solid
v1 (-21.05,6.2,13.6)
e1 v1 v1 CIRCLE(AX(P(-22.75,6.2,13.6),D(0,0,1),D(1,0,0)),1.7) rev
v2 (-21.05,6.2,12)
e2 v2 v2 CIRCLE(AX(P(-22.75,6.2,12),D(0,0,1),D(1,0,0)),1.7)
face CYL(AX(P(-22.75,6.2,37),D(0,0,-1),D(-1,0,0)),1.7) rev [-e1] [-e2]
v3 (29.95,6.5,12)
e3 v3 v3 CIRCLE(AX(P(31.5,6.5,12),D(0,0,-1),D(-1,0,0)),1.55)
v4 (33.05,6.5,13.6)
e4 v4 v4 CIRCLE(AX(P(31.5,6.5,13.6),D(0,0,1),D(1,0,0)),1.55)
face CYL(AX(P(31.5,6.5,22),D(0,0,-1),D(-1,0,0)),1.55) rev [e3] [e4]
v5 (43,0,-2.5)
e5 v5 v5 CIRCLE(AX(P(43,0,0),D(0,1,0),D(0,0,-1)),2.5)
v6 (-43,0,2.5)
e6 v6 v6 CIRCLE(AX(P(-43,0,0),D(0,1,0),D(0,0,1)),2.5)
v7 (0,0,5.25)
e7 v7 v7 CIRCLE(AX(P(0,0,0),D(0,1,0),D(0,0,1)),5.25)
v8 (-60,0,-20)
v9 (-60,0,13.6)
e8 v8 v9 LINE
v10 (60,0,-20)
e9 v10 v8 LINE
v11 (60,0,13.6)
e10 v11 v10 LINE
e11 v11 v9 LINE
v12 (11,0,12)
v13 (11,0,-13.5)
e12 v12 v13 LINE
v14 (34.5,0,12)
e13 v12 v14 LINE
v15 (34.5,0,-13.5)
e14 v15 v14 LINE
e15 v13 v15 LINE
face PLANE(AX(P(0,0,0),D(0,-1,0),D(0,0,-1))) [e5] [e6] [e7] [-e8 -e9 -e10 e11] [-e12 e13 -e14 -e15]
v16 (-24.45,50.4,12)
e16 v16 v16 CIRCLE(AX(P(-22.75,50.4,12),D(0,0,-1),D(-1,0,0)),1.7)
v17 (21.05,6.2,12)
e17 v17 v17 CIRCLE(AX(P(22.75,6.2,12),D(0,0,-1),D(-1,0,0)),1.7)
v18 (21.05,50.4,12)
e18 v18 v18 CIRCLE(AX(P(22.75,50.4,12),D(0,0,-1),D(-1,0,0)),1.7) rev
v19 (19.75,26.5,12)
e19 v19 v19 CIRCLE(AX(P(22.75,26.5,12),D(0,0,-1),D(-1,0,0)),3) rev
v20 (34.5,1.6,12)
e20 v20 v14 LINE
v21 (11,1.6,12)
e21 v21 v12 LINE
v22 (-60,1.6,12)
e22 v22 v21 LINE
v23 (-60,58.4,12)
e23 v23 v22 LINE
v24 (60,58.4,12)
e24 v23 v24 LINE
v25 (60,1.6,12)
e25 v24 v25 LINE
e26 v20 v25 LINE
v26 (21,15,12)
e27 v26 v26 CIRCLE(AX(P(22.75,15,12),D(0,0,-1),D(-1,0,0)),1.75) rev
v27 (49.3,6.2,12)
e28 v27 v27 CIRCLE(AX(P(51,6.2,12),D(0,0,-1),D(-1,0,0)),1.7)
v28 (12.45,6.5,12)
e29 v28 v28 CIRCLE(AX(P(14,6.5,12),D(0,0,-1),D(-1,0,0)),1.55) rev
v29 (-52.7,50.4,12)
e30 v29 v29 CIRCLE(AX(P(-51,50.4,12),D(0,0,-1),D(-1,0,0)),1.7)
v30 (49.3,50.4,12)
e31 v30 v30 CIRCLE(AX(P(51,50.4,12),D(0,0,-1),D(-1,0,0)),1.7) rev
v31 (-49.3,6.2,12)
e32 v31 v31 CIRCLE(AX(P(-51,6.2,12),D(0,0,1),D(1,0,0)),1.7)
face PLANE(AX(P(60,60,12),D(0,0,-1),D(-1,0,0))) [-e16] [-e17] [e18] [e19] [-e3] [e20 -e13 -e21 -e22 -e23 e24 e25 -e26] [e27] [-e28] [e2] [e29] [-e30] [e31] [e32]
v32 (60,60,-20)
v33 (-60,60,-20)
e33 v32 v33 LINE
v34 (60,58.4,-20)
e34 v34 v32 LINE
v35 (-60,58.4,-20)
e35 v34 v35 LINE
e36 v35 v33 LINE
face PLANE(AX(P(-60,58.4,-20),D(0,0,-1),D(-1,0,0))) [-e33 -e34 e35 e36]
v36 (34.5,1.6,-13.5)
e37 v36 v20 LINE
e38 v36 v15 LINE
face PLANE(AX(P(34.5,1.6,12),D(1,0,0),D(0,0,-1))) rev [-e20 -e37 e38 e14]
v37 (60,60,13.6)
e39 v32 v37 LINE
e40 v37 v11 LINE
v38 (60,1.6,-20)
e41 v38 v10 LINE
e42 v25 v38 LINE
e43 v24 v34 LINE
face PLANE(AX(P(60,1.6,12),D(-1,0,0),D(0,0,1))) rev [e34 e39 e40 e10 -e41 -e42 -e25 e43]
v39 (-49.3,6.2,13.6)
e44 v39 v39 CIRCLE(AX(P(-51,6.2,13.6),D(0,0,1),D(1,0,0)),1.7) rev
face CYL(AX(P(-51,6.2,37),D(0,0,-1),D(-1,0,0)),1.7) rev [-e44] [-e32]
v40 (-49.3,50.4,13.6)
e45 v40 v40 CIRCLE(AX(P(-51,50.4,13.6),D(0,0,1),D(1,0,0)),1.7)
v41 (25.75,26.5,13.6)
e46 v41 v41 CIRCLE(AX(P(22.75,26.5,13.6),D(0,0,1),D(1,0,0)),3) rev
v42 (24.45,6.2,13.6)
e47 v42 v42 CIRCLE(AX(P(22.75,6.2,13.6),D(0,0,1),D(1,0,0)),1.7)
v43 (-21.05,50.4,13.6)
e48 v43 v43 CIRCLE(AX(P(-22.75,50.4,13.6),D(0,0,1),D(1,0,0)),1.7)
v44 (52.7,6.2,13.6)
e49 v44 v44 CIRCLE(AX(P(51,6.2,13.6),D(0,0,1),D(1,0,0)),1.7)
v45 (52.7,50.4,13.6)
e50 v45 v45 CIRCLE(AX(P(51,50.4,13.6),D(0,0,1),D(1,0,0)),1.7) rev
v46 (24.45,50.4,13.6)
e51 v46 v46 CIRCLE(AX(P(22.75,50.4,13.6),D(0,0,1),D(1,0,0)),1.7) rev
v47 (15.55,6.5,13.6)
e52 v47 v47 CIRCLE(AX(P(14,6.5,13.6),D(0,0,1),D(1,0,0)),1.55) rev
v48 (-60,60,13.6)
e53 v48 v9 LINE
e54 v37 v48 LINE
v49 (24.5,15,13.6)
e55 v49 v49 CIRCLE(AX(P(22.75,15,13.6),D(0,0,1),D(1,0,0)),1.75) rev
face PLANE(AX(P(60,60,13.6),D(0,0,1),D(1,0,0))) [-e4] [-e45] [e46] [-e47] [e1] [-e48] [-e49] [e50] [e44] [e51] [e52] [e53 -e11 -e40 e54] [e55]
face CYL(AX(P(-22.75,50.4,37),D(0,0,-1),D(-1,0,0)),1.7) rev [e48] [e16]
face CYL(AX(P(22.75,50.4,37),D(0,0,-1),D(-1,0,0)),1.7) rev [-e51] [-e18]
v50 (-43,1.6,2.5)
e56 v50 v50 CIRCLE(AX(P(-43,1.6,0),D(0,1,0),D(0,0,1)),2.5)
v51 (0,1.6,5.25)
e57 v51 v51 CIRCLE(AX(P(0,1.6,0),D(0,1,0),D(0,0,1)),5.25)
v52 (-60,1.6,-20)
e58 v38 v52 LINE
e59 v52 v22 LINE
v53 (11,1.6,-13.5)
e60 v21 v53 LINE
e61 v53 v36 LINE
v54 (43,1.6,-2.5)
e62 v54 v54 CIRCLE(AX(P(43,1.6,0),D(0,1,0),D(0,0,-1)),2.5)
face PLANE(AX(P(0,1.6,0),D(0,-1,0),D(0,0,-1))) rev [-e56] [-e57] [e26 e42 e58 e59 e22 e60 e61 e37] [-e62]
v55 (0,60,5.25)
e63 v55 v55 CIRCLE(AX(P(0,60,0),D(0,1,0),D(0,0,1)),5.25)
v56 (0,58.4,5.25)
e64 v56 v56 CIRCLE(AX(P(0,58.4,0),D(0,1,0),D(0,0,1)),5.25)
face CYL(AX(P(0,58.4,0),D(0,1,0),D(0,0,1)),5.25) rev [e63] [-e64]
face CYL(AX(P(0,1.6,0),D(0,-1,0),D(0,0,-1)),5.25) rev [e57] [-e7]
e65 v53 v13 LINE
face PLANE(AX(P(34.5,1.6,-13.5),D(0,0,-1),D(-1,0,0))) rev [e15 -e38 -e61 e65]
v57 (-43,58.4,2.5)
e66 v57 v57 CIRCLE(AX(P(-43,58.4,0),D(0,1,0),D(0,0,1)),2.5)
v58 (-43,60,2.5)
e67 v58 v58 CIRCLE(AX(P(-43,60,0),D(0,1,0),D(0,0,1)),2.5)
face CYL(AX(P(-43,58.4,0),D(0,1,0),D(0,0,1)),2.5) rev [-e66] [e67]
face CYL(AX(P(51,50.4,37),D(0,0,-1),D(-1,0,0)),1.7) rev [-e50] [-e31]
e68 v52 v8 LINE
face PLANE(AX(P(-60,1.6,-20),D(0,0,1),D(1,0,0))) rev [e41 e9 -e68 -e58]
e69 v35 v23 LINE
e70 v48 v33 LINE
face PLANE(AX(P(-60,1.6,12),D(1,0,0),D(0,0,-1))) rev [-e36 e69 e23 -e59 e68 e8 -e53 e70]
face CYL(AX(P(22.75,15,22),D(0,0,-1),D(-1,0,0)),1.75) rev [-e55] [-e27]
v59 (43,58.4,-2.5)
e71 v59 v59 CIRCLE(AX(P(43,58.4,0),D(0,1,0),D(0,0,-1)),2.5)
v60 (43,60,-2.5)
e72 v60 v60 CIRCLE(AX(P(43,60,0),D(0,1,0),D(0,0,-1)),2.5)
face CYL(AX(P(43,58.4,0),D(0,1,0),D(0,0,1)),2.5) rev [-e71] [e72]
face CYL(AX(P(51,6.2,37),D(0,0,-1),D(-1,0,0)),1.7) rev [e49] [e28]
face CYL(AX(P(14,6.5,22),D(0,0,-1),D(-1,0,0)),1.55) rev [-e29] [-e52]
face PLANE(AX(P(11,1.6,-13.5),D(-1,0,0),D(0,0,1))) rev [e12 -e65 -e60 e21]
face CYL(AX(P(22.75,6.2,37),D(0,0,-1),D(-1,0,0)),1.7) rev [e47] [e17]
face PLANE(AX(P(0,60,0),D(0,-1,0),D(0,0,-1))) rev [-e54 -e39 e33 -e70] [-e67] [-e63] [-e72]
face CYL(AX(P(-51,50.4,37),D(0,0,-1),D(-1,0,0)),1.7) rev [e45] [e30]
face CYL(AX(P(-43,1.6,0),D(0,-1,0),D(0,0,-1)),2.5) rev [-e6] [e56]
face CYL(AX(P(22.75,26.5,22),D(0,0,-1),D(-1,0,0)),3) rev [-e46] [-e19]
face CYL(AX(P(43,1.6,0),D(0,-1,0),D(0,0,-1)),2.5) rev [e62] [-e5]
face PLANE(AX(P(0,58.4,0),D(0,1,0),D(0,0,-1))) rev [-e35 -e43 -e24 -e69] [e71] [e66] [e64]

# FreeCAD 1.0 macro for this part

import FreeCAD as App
import Part
import Sketcher

V = App.Vector
Q = App.Units.Quantity

doc = App.newDocument("Part")
body = doc.addObject("PartDesign::Body", "Body")

# Sketch on XZ plane
sketch1 = body.newObject("Sketcher::SketchObject", "Sketch")
sketch1.AttachmentSupport = (doc.getObject("XZ_Plane"), [""])
sketch1.MapMode = "FlatFace"
sketch1.addGeometry([
    Part.LineSegment(V(34.5, -13.5, 0), V(34.5, 12, 0)),  # 0
    Part.LineSegment(V(34.5, 12, 0), V(60, 12, 0)),  # 1
    Part.LineSegment(V(60, 12, 0), V(60, -20, 0)),  # 2
    Part.LineSegment(V(60, -20, 0), V(-60, -20, 0)),  # 3
    Part.LineSegment(V(-60, -20, 0), V(-60, 12, 0)),  # 4
    Part.LineSegment(V(-60, 12, 0), V(11, 12, 0)),  # 5
    Part.LineSegment(V(11, 12, 0), V(11, -13.5, 0)),  # 6
    Part.LineSegment(V(11, -13.5, 0), V(34.5, -13.5, 0)),  # 7
    Part.Circle(V(43, 0, 0), V(0, 0, 1), 2.5),  # 8
    Part.Circle(V(-43, 0, 0), V(0, 0, 1), 2.5),  # 9
    Part.Circle(V(0, 0, 0), V(0, 0, 1), 5.2),  # 10
], False)
sketch1.addConstraint([
    Sketcher.Constraint("Coincident", 0, 2, 1, 1),
    Sketcher.Constraint("Coincident", 1, 2, 2, 1),
    Sketcher.Constraint("Coincident", 2, 2, 3, 1),
    Sketcher.Constraint("Coincident", 3, 2, 4, 1),
    Sketcher.Constraint("Coincident", 4, 2, 5, 1),
    Sketcher.Constraint("Coincident", 5, 2, 6, 1),
    Sketcher.Constraint("Coincident", 6, 2, 7, 1),
    Sketcher.Constraint("Coincident", 7, 2, 0, 1),
    Sketcher.Constraint("Vertical", 0),
    Sketcher.Constraint("Horizontal", 1),
    Sketcher.Constraint("Vertical", 2),
    Sketcher.Constraint("Horizontal", 3),
    Sketcher.Constraint("Vertical", 4),
    Sketcher.Constraint("Horizontal", 5),
    Sketcher.Constraint("Vertical", 6),
    Sketcher.Constraint("Horizontal", 7),
    Sketcher.Constraint("Coincident", 10, 3, -1, 1),
    Sketcher.Constraint("Equal", 8, 9),
    Sketcher.Constraint("Symmetric", 8, 3, 9, 3, -1, 1),
    Sketcher.Constraint("Symmetric", 1, 2, 4, 2, -2),
    Sketcher.Constraint("PointOnObject", 8, 3, -1),
    Sketcher.Constraint("Equal", 1, 0),
    Sketcher.Constraint("Diameter", 8, Q("5 mm")),
    Sketcher.Constraint("Diameter", 10, Q("10.5 mm")),
    Sketcher.Constraint("DistanceX", 3, 2, 3, 1, Q("120 mm")),
    Sketcher.Constraint("DistanceX", 5, 1, 5, 2, Q("71 mm")),
    Sketcher.Constraint("DistanceY", 2, 2, 2, 1, Q("32 mm")),
    Sketcher.Constraint("DistanceX", 1, 1, 1, 2, Q("25.5 mm")),
    Sketcher.Constraint("DistanceX", -1, 1, 8, 3, Q("43 mm")),
    Sketcher.Constraint("DistanceY", -1, 1, 0, 2, Q("12 mm")),
])
pad1 = body.newObject("PartDesign::Pad", "Pad")
pad1.Profile = sketch1
pad1.Length = 1.6
pad1.Reversed = True

# Sketch on XZ plane
sketch2 = body.newObject("Sketcher::SketchObject", "Sketch001")
sketch2.AttachmentSupport = (doc.getObject("XZ_Plane"), [""])
sketch2.MapMode = "FlatFace"
sketch2.addGeometry([
    Part.LineSegment(V(-60, 13.6, 0), V(-60, 12, 0)),
    Part.LineSegment(V(-60, 12, 0), V(60, 12, 0)),
    Part.LineSegment(V(60, 12, 0), V(60, 13.6, 0)),
    Part.LineSegment(V(60, 13.6, 0), V(-60, 13.6, 0)),
], False)
sketch2.addConstraint([
    Sketcher.Constraint("Coincident", 0, 2, 1, 1),
    Sketcher.Constraint("Coincident", 1, 2, 2, 1),
    Sketcher.Constraint("Coincident", 2, 2, 3, 1),
    Sketcher.Constraint("Coincident", 3, 2, 0, 1),
    Sketcher.Constraint("Vertical", 0),
    Sketcher.Constraint("Horizontal", 1),
    Sketcher.Constraint("Vertical", 2),
    Sketcher.Constraint("Horizontal", 3),
    Sketcher.Constraint("DistanceX", 1, 1, 1, 2, Q("120 mm")),
    Sketcher.Constraint("DistanceY", 0, 2, 0, 1, Q("1.6 mm")),
    Sketcher.Constraint("DistanceX", 0, 2, -1, 1, Q("60 mm")),
    Sketcher.Constraint("DistanceY", -1, 1, 0, 2, Q("12 mm")),
])
pad2 = body.newObject("PartDesign::Pad", "Pad001")
pad2.Profile = sketch2
pad2.Length = 60
pad2.Reversed = True
doc.recompute()

datumplane = body.newObject("PartDesign::Plane", "DatumPlane")
datumplane.AttachmentSupport = (doc.getObject("XZ_Plane"), [""])
datumplane.MapMode = "FlatFace"
datumplane.AttachmentOffset = App.Placement(V(0, 0, -30), App.Rotation())
mirrored = body.newObject("PartDesign::Mirrored", "Mirrored")
mirrored.Originals = [pad1]
mirrored.MirrorPlane = (datumplane, [""])
body.Tip = mirrored

# Sketch on XY plane
sketch3 = body.newObject("Sketcher::SketchObject", "Sketch002")
sketch3.AttachmentSupport = (doc.getObject("XY_Plane"), [""])
sketch3.MapMode = "FlatFace"
sketch3.AttachmentOffset = App.Placement(V(0, 0, 12), App.Rotation())
sketch3.addGeometry([
    Part.Circle(V(22.8, 26.5, 0), V(0, 0, 1), 3),
    Part.Circle(V(31.5, 6.5, 0), V(0, 0, 1), 1.6),
    Part.Circle(V(14, 6.5, 0), V(0, 0, 1), 1.6),
    Part.Circle(V(22.8, 15, 0), V(0, 0, 1), 1.8),
], False)
sketch3.addConstraint([
    Sketcher.Constraint("Equal", 1, 2),
    Sketcher.Constraint("Horizontal", 1, 3, 2, 3),
    Sketcher.Constraint("Vertical", 0, 3, 3, 3),
    Sketcher.Constraint("Diameter", 0, Q("6 mm")),
    Sketcher.Constraint("Diameter", 1, Q("3.1 mm")),
    Sketcher.Constraint("Diameter", 3, Q("3.5 mm")),
    Sketcher.Constraint("DistanceX", -1, 1, 2, 3, Q("14 mm")),
    Sketcher.Constraint("DistanceY", -1, 1, 3, 3, Q("15 mm")),
    Sketcher.Constraint("DistanceY", 1, 3, 0, 3, Q("20 mm")),
    Sketcher.Constraint("DistanceY", -1, 1, 0, 3, Q("26.5 mm")),
    Sketcher.Constraint("DistanceX", -1, 1, 1, 3, Q("31.5 mm")),
    Sketcher.Constraint("DistanceX", -1, 1, 0, 3, Q("22.75 mm")),
])
pocket1 = body.newObject("PartDesign::Pocket", "Pocket")
pocket1.Profile = sketch3
pocket1.Length = 10
pocket1.Reversed = True

# Sketch on XY plane
sketch4 = body.newObject("Sketcher::SketchObject", "Sketch003")
sketch4.AttachmentSupport = (doc.getObject("XY_Plane"), [""])
sketch4.MapMode = "FlatFace"
sketch4.AttachmentOffset = App.Placement(V(0, 0, 12), App.Rotation())
sketch4.addGeometry([
    Part.Circle(V(-51, 50.4, 0), V(0, 0, 1), 1.7),  # 0
    Part.Circle(V(-22.8, 50.4, 0), V(0, 0, 1), 1.7),  # 1
    Part.Circle(V(22.8, 50.4, 0), V(0, 0, 1), 1.7),  # 2
    Part.Circle(V(51, 50.4, 0), V(0, 0, 1), 1.7),  # 3
    Part.Circle(V(-51, 6.2, 0), V(0, 0, 1), 1.7),  # 4
    Part.Circle(V(-22.8, 6.2, 0), V(0, 0, 1), 1.7),  # 5
    Part.Circle(V(22.8, 6.2, 0), V(0, 0, 1), 1.7),  # 6
    Part.Circle(V(51, 6.2, 0), V(0, 0, 1), 1.7),  # 7
], False)
sketch4.addConstraint([
    Sketcher.Constraint("Equal", 0, 1),
    Sketcher.Constraint("Equal", 1, 2),
    Sketcher.Constraint("Equal", 2, 3),
    Sketcher.Constraint("Equal", 3, 4),
    Sketcher.Constraint("Equal", 4, 5),
    Sketcher.Constraint("Equal", 5, 6),
    Sketcher.Constraint("Equal", 6, 7),
    Sketcher.Constraint("Symmetric", 1, 3, 2, 3, -2),
    Sketcher.Constraint("Symmetric", 0, 3, 3, 3, -2),
    Sketcher.Constraint("Symmetric", 5, 3, 6, 3, -2),
    Sketcher.Constraint("Symmetric", 4, 3, 7, 3, -2),
    Sketcher.Constraint("Horizontal", 0, 3, 1, 3),
    Sketcher.Constraint("Horizontal", 4, 3, 5, 3),
    Sketcher.Constraint("Vertical", 0, 3, 4, 3),
    Sketcher.Constraint("Vertical", 1, 3, 5, 3),
    Sketcher.Constraint("Diameter", 0, Q("3.4 mm")),
    Sketcher.Constraint("DistanceX", 0, 3, -1, 1, Q("51 mm")),
    Sketcher.Constraint("DistanceY", -1, 1, 0, 3, Q("50.4 mm")),
    Sketcher.Constraint("DistanceY", -1, 1, 4, 3, Q("6.2 mm")),
    Sketcher.Constraint("DistanceX", 1, 3, 2, 3, Q("45.5 mm")),
])
pocket2 = body.newObject("PartDesign::Pocket", "Pocket001")
pocket2.Profile = sketch4
pocket2.Length = 25
pocket2.Reversed = True

# Sketch on YZ plane
sketch5 = body.newObject("Sketcher::SketchObject", "Sketch004")
sketch5.AttachmentSupport = (doc.getObject("YZ_Plane"), [""])
sketch5.MapMode = "FlatFace"
sketch5.AttachmentOffset = App.Placement(V(0, 0, 34.5), App.Rotation())
sketch5.addGeometry([
    Part.LineSegment(V(60, -13.5, 0), V(58.4, -13.5, 0)),
    Part.LineSegment(V(58.4, -13.5, 0), V(58.4, 12, 0)),
    Part.LineSegment(V(58.4, 12, 0), V(60, 12, 0)),
    Part.LineSegment(V(60, 12, 0), V(60, -13.5, 0)),
], False)
sketch5.addConstraint([
    Sketcher.Constraint("Coincident", 0, 2, 1, 1),
    Sketcher.Constraint("Coincident", 1, 2, 2, 1),
    Sketcher.Constraint("Coincident", 2, 2, 3, 1),
    Sketcher.Constraint("Coincident", 3, 2, 0, 1),
    Sketcher.Constraint("Horizontal", 0),
    Sketcher.Constraint("Vertical", 1),
    Sketcher.Constraint("Horizontal", 2),
    Sketcher.Constraint("Vertical", 3),
    Sketcher.Constraint("DistanceX", 0, 2, 0, 1, Q("1.6 mm")),
    Sketcher.Constraint("DistanceY", 1, 1, 1, 2, Q("25.5 mm")),
    Sketcher.Constraint("DistanceY", -1, 1, 1, 2, Q("12 mm")),
    Sketcher.Constraint("DistanceX", -1, 1, 2, 2, Q("60 mm")),
])
pad3 = body.newObject("PartDesign::Pad", "Pad002")
pad3.Profile = sketch5
pad3.Length = 25
pad3.Reversed = True

doc.recompute()
